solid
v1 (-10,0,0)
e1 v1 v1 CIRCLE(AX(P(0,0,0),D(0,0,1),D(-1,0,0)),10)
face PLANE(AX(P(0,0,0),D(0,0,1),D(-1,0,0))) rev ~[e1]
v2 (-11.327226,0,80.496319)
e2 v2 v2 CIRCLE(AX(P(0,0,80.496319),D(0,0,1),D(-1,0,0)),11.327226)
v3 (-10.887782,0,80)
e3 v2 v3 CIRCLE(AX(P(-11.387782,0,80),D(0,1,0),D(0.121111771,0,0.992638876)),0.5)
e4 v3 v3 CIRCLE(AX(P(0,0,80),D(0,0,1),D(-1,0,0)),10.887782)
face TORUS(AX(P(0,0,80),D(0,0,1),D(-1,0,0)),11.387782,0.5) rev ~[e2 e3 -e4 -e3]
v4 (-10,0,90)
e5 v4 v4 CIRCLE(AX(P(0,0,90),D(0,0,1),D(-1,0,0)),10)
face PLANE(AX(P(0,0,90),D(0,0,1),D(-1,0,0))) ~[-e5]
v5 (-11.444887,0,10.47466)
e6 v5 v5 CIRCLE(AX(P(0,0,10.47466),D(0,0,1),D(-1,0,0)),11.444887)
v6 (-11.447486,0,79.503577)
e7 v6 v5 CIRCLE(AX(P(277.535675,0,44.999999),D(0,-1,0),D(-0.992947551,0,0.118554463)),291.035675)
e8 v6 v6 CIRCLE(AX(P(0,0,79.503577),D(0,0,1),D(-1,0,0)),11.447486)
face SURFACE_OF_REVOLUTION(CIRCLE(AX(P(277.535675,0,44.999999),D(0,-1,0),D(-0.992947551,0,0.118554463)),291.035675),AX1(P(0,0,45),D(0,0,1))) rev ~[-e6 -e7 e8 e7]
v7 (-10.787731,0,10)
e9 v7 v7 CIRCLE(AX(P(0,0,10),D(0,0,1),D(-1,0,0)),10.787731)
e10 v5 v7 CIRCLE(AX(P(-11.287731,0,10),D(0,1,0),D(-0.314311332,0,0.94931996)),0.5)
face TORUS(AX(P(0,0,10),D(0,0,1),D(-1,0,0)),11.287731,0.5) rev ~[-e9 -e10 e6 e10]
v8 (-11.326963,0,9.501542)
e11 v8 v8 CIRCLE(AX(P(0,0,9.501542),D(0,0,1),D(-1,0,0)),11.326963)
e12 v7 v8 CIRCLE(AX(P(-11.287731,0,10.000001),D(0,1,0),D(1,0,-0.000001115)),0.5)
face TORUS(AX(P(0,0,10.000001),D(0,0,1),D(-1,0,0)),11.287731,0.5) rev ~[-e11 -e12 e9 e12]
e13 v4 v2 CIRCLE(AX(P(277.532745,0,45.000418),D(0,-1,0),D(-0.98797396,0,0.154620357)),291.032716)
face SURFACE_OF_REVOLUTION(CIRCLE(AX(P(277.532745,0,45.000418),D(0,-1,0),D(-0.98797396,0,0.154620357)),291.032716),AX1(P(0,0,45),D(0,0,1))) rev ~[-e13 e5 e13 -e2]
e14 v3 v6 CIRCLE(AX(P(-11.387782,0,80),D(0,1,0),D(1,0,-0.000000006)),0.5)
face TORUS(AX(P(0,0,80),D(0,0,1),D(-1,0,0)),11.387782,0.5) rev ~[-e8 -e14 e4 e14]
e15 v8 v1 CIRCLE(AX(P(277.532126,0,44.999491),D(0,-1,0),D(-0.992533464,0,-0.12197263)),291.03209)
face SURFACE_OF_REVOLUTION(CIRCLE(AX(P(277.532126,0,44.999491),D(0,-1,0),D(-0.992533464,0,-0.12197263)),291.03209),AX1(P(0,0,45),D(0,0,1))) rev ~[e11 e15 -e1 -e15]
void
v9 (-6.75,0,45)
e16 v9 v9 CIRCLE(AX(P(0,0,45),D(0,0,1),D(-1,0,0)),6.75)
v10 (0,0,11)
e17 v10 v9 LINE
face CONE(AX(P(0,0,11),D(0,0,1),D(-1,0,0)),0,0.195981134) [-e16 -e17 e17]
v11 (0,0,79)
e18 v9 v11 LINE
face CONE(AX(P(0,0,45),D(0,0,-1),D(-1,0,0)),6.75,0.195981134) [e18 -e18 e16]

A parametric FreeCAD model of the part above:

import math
import FreeCAD as App
import Part
import Sketcher

V = App.Vector
Q = App.Units.Quantity

doc = App.newDocument("Part")
body = doc.addObject("PartDesign::Body", "Body")

sketch1 = body.newObject("Sketcher::SketchObject", "Sketch")
sketch1.AttachmentSupport = (doc.getObject("XZ_Plane"), [""])
sketch1.MapMode = "FlatFace"
sketch1.addGeometry(Part.LineSegment(V(-10, 0, 0), V(0, 0, 0)), False)
sketch1.addGeometry(Part.LineSegment(V(0, 0, 0), V(0, 11, 0)), False)
sketch1.addGeometry(Part.LineSegment(V(0, 11, 0), V(-6.75, 45, 0)), False)
sketch1.addGeometry(Part.LineSegment(V(-6.75, 45, 0), V(0, 79, 0)), False)
sketch1.addGeometry(Part.LineSegment(V(0, 79, 0), V(0, 90, 0)), False)
sketch1.addGeometry(Part.LineSegment(V(0, 90, 0), V(-10, 90, 0)), False)
sketch1.addGeometry(Part.ArcOfCircle(Part.Circle(V(277.53, 45, 0), V(0, 0, 1), 291.03), math.radians(171.11), math.radians(172.99)), False)
sketch1.addGeometry(Part.ArcOfCircle(Part.Circle(V(-11.39, 80, 0), V(0, 0, 1), 0.5), math.radians(0), math.radians(83)), False)
sketch1.addGeometry(Part.ArcOfCircle(Part.Circle(V(-11.39, 80, 0), V(0, 0, 1), 0.5), math.radians(-97), math.radians(0)), False)
sketch1.addGeometry(Part.ArcOfCircle(Part.Circle(V(277.54, 45, 0), V(0, 0, 1), 291.04), math.radians(173.19), math.radians(186.81)), False)
sketch1.addGeometry(Part.ArcOfCircle(Part.Circle(V(-11.29, 10, 0), V(0, 0, 1), 0.5), math.radians(0), math.radians(108)), False)
sketch1.addGeometry(Part.ArcOfCircle(Part.Circle(V(-11.29, 10, 0), V(0, 0, 1), 0.5), math.radians(-95), math.radians(0)), False)
sketch1.addGeometry(Part.ArcOfCircle(Part.Circle(V(277.53, 45, 0), V(0, 0, 1), 291.03), math.radians(-172.99), math.radians(-171.11)), False)
sketch1.addConstraint(Sketcher.Constraint("Coincident", 0, 2, 1, 1))
sketch1.addConstraint(Sketcher.Constraint("Coincident", 1, 2, 2, 1))
sketch1.addConstraint(Sketcher.Constraint("Coincident", 2, 2, 3, 1))
sketch1.addConstraint(Sketcher.Constraint("Coincident", 3, 2, 4, 1))
sketch1.addConstraint(Sketcher.Constraint("Coincident", 4, 2, 5, 1))
sketch1.addConstraint(Sketcher.Constraint("Coincident", 5, 2, 6, 1))
sketch1.addConstraint(Sketcher.Constraint("Coincident", 6, 2, 7, 2))
sketch1.addConstraint(Sketcher.Constraint("Tangent", 7, 1, 8, 2))
sketch1.addConstraint(Sketcher.Constraint("Coincident", 8, 1, 9, 1))
sketch1.addConstraint(Sketcher.Constraint("Coincident", 9, 2, 10, 2))
sketch1.addConstraint(Sketcher.Constraint("Tangent", 10, 1, 11, 2))
sketch1.addConstraint(Sketcher.Constraint("Coincident", 11, 1, 12, 1))
sketch1.addConstraint(Sketcher.Constraint("Coincident", 12, 2, 0, 1))
sketch1.addConstraint(Sketcher.Constraint("Horizontal", 0))
sketch1.addConstraint(Sketcher.Constraint("Vertical", 1))
sketch1.addConstraint(Sketcher.Constraint("Vertical", 4))
sketch1.addConstraint(Sketcher.Constraint("Horizontal", 5))
sketch1.addConstraint(Sketcher.Constraint("Coincident", 0, 2, -1, 1))
sketch1.addConstraint(Sketcher.Constraint("Equal", 7, 8))
sketch1.addConstraint(Sketcher.Constraint("Equal", 8, 10))
sketch1.addConstraint(Sketcher.Constraint("Equal", 10, 11))
sketch1.addConstraint(Sketcher.Constraint("PointOnObject", 3, 2, -2))
sketch1.addConstraint(Sketcher.Constraint("Horizontal", 9, 3, 2, 2))
sketch1.addConstraint(Sketcher.Constraint("Horizontal", 8, 3, 7, 1))
sketch1.addConstraint(Sketcher.Constraint("Horizontal", 11, 3, 10, 1))
sketch1.addConstraint(Sketcher.Constraint("Vertical", 5, 2, 12, 2))
sketch1.addConstraint(Sketcher.Constraint("Equal", 1, 4))
sketch1.addConstraint(Sketcher.Constraint("Equal", 2, 3))
sketch1.addConstraint(Sketcher.Constraint("Radius", 7, Q("0.5 mm")))
sketch1.addConstraint(Sketcher.Constraint("DistanceX", 0, 1, 0, 2, Q("10 mm")))
sketch1.addConstraint(Sketcher.Constraint("DistanceY", 1, 1, 1, 2, Q("11 mm")))
sketch1.addConstraint(Sketcher.Constraint("DistanceY", -1, 1, 7, 3, Q("80 mm")))
sketch1.addConstraint(Sketcher.Constraint("DistanceY", -1, 1, 9, 3, Q("44.999999 mm")))
sketch1.addConstraint(Sketcher.Constraint("DistanceY", -1, 1, 10, 3, Q("10 mm")))
sketch1.addConstraint(Sketcher.Constraint("DistanceX", 2, 2, -1, 1, Q("6.75 mm")))
sketch1.addConstraint(Sketcher.Constraint("Radius", 12, Q("291.03209 mm")))
sketch1.addConstraint(Sketcher.Constraint("Radius", 6, Q("291.032716 mm")))
sketch1.addConstraint(Sketcher.Constraint("Radius", 9, Q("291.035675 mm")))
sketch1.addConstraint(Sketcher.Constraint("DistanceX", 7, 3, -1, 1, Q("11.387782 mm")))
sketch1.addConstraint(Sketcher.Constraint("DistanceX", 10, 3, -1, 1, Q("11.287731 mm")))
sketch1.addConstraint(Sketcher.Constraint("DistanceY", -1, 1, 12, 3, Q("44.999491 mm")))
sketch1.addConstraint(Sketcher.Constraint("DistanceY", 6, 3, 7, 3, Q("34.999582 mm")))
sketch1.addConstraint(Sketcher.Constraint("DistanceX", 6, 3, 9, 3, Q("0.00293 mm")))
revolution = body.newObject("PartDesign::Revolution", "Revolution")
revolution.Profile = sketch1
revolution.ReferenceAxis = (sketch1, ["V_Axis"])
revolution.Angle = 360

doc.recompute()
